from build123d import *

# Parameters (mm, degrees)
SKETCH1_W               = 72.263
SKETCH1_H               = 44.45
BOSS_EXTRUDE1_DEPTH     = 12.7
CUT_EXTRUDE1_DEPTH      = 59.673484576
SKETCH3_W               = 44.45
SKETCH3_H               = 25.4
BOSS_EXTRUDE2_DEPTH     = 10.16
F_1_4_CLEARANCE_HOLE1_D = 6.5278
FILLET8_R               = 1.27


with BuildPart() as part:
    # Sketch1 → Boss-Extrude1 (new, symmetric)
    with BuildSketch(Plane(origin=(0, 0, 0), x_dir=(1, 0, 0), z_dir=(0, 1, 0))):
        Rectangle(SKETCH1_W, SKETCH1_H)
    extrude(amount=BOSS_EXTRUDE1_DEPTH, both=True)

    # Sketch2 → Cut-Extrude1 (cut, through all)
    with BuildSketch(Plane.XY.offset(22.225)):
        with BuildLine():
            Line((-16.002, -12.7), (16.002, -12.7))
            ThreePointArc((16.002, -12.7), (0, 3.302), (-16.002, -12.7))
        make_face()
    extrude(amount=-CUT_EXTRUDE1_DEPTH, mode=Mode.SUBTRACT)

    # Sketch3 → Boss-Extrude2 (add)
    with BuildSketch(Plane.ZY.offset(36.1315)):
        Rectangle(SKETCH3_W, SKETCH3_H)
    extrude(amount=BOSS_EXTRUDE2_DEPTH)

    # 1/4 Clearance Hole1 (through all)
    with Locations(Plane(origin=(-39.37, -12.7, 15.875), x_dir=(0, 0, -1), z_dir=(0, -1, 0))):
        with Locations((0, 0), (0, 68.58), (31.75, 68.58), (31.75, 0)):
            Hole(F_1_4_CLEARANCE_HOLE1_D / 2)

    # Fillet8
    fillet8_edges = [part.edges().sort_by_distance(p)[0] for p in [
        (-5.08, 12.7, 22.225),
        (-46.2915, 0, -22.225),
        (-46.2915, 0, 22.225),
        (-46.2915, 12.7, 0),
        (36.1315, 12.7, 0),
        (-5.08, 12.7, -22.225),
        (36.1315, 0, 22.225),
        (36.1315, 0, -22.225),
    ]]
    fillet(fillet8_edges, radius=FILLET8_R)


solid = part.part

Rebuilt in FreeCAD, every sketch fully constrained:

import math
import FreeCAD as App
import Part
import Sketcher
Q = App.Units.Quantity


def edges_at(feature, points):
    """Names of the edges that pass closest to the given points."""
    edges = feature.Shape.Edges
    near = lambda p: min(range(len(edges)), key=lambda i: edges[i].distToShape(Part.Vertex(*p))[0])
    return sorted({f"Edge{near(p) + 1}" for p in points})

doc = App.newDocument("Part")
body = doc.addObject("PartDesign::Body", "Body")

# Sketch on XZ plane
sketch1 = body.newObject("Sketcher::SketchObject", "Sketch")
sketch1.AttachmentSupport = (doc.getObject("XZ_Plane"), [""])
sketch1.MapMode = "FlatFace"
sketch1.addGeometry([
    Part.LineSegment(App.Vector(-36.1315, -22.225, 0), App.Vector(-36.1315, 22.225, 0)),
    Part.LineSegment(App.Vector(-36.1315, 22.225, 0), App.Vector(36.1315, 22.225, 0)),
    Part.LineSegment(App.Vector(36.1315, 22.225, 0), App.Vector(36.1315, -22.225, 0)),
    Part.LineSegment(App.Vector(36.1315, -22.225, 0), App.Vector(-36.1315, -22.225, 0)),
], False)
sketch1.addConstraint([
    Sketcher.Constraint("Coincident", 0, 2, 1, 1),
    Sketcher.Constraint("Coincident", 1, 2, 2, 1),
    Sketcher.Constraint("Coincident", 2, 2, 3, 1),
    Sketcher.Constraint("Coincident", 3, 2, 0, 1),
    Sketcher.Constraint("Vertical", 0),
    Sketcher.Constraint("Horizontal", 1),
    Sketcher.Constraint("Vertical", 2),
    Sketcher.Constraint("Horizontal", 3),
    Sketcher.Constraint("Symmetric", 0, 2, 2, 2, -1, 1),
    Sketcher.Constraint("DistanceY", 0, 1, 0, 2, Q("1.75 in")),
    Sketcher.Constraint("DistanceX", 1, 1, 1, 2, Q("2.845 in")),
])
pad1 = body.newObject("PartDesign::Pad", "Pad")
pad1.Profile = sketch1
pad1.Length = Q("1 in")
pad1.Midplane = True

# Sketch on XY plane
sketch2 = body.newObject("Sketcher::SketchObject", "Sketch001")
sketch2.AttachmentSupport = (doc.getObject("XY_Plane"), [""])
sketch2.MapMode = "FlatFace"
sketch2.AttachmentOffset = App.Placement(App.Vector(0, 0, 0.875 * 25.4), App.Rotation())
sketch2.addGeometry([
    Part.LineSegment(App.Vector(-16.002, -12.7, 0), App.Vector(16.002, -12.7, 0)),
    Part.ArcOfCircle(Part.Circle(App.Vector(0, -12.7, 0), App.Vector(0, 0, 1), 16.002), math.radians(0), math.radians(180)),
], False)
sketch2.addConstraint([
    Sketcher.Constraint("Coincident", 0, 1, 1, 2),
    Sketcher.Constraint("Coincident", 1, 1, 0, 2),
    Sketcher.Constraint("Horizontal", 0),
    Sketcher.Constraint("PointOnObject", 1, 3, -2),
    Sketcher.Constraint("Horizontal", 1, 3, 0, 1),
    Sketcher.Constraint("Radius", 1, Q("0.63 in")),
    Sketcher.Constraint("DistanceY", 1, 3, -1, 1, Q("0.5 in")),
])
pocket1 = body.newObject("PartDesign::Pocket", "Pocket")
pocket1.Profile = sketch2
pocket1.Type = "ThroughAll"

# Sketch on YZ plane
sketch3 = body.newObject("Sketcher::SketchObject", "Sketch002")
sketch3.AttachmentSupport = (doc.getObject("YZ_Plane"), [""])
sketch3.MapMode = "FlatFace"
sketch3.AttachmentOffset = App.Placement(App.Vector(0, 0, -1.4225 * 25.4), App.Rotation())
sketch3.addGeometry([
    Part.LineSegment(App.Vector(12.7, -22.225, 0), App.Vector(-12.7, -22.225, 0)),
    Part.LineSegment(App.Vector(-12.7, -22.225, 0), App.Vector(-12.7, 22.225, 0)),
    Part.LineSegment(App.Vector(-12.7, 22.225, 0), App.Vector(12.7, 22.225, 0)),
    Part.LineSegment(App.Vector(12.7, 22.225, 0), App.Vector(12.7, -22.225, 0)),
], False)
sketch3.addConstraint([
    Sketcher.Constraint("Coincident", 0, 2, 1, 1),
    Sketcher.Constraint("Coincident", 1, 2, 2, 1),
    Sketcher.Constraint("Coincident", 2, 2, 3, 1),
    Sketcher.Constraint("Coincident", 3, 2, 0, 1),
    Sketcher.Constraint("Horizontal", 0),
    Sketcher.Constraint("Vertical", 1),
    Sketcher.Constraint("Horizontal", 2),
    Sketcher.Constraint("Vertical", 3),
    Sketcher.Constraint("Symmetric", 0, 2, 2, 2, -1, 1),
    Sketcher.Constraint("DistanceX", 0, 2, 0, 1, Q("1 in")),
    Sketcher.Constraint("DistanceY", 1, 1, 1, 2, Q("1.75 in")),
])
pad2 = body.newObject("PartDesign::Pad", "Pad001")
pad2.Profile = sketch3
pad2.Length = Q("0.4 in")
pad2.Reversed = True

# Sketch on XZ plane
sketch4 = body.newObject("Sketcher::SketchObject", "Sketch003")
sketch4.AttachmentSupport = (doc.getObject("XZ_Plane"), [""])
sketch4.MapMode = "FlatFace"
sketch4.AttachmentOffset = App.Placement(App.Vector(0, 0, 0.5 * 25.4), App.Rotation())
sketch4.addGeometry([
    Part.Circle(App.Vector(-39.37, 15.875, 0), App.Vector(0, 0, 1), 3.2639),
    Part.Circle(App.Vector(29.21, 15.875, 0), App.Vector(0, 0, 1), 3.2639),
    Part.Circle(App.Vector(29.21, -15.875, 0), App.Vector(0, 0, 1), 3.2639),
    Part.Circle(App.Vector(-39.37, -15.875, 0), App.Vector(0, 0, 1), 3.2639),
], False)
sketch4.addConstraint([
    Sketcher.Constraint("Equal", 0, 1),
    Sketcher.Constraint("Equal", 1, 2),
    Sketcher.Constraint("Equal", 2, 3),
    Sketcher.Constraint("Symmetric", 1, 3, 2, 3, -1),
    Sketcher.Constraint("Symmetric", 0, 3, 3, 3, -1),
    Sketcher.Constraint("Horizontal", 0, 3, 1, 3),
    Sketcher.Constraint("Diameter", 0, Q("0.257 in")),
    Sketcher.Constraint("DistanceX", 0, 3, 1, 3, Q("2.7 in")),
    Sketcher.Constraint("DistanceX", 0, 3, -1, 1, Q("1.55 in")),
    Sketcher.Constraint("DistanceY", 2, 3, 1, 3, Q("1.25 in")),
])
doc.recompute()
hole = body.newObject("PartDesign::Hole", "Hole")
hole.Profile = sketch4
hole.ThreadType = "None"
hole.Diameter = Q("0.257 in")
hole.DepthType = "ThroughAll"
doc.recompute()

fillet = body.newObject("PartDesign::Fillet", "Fillet")
fillet.Base = (hole, edges_at(hole, [
    (-5.08, 12.7, 22.225),
    (-46.291, 0, -22.225),
    (-46.291, 0, 22.225),
    (-46.291, 12.7, 0),
    (36.132, 12.7, 0),
    (-5.08, 12.7, -22.225),
    (36.132, 0, 22.225),
    (36.132, 0, -22.225),
]))
fillet.Radius = Q("0.05 in")

doc.recompute()
